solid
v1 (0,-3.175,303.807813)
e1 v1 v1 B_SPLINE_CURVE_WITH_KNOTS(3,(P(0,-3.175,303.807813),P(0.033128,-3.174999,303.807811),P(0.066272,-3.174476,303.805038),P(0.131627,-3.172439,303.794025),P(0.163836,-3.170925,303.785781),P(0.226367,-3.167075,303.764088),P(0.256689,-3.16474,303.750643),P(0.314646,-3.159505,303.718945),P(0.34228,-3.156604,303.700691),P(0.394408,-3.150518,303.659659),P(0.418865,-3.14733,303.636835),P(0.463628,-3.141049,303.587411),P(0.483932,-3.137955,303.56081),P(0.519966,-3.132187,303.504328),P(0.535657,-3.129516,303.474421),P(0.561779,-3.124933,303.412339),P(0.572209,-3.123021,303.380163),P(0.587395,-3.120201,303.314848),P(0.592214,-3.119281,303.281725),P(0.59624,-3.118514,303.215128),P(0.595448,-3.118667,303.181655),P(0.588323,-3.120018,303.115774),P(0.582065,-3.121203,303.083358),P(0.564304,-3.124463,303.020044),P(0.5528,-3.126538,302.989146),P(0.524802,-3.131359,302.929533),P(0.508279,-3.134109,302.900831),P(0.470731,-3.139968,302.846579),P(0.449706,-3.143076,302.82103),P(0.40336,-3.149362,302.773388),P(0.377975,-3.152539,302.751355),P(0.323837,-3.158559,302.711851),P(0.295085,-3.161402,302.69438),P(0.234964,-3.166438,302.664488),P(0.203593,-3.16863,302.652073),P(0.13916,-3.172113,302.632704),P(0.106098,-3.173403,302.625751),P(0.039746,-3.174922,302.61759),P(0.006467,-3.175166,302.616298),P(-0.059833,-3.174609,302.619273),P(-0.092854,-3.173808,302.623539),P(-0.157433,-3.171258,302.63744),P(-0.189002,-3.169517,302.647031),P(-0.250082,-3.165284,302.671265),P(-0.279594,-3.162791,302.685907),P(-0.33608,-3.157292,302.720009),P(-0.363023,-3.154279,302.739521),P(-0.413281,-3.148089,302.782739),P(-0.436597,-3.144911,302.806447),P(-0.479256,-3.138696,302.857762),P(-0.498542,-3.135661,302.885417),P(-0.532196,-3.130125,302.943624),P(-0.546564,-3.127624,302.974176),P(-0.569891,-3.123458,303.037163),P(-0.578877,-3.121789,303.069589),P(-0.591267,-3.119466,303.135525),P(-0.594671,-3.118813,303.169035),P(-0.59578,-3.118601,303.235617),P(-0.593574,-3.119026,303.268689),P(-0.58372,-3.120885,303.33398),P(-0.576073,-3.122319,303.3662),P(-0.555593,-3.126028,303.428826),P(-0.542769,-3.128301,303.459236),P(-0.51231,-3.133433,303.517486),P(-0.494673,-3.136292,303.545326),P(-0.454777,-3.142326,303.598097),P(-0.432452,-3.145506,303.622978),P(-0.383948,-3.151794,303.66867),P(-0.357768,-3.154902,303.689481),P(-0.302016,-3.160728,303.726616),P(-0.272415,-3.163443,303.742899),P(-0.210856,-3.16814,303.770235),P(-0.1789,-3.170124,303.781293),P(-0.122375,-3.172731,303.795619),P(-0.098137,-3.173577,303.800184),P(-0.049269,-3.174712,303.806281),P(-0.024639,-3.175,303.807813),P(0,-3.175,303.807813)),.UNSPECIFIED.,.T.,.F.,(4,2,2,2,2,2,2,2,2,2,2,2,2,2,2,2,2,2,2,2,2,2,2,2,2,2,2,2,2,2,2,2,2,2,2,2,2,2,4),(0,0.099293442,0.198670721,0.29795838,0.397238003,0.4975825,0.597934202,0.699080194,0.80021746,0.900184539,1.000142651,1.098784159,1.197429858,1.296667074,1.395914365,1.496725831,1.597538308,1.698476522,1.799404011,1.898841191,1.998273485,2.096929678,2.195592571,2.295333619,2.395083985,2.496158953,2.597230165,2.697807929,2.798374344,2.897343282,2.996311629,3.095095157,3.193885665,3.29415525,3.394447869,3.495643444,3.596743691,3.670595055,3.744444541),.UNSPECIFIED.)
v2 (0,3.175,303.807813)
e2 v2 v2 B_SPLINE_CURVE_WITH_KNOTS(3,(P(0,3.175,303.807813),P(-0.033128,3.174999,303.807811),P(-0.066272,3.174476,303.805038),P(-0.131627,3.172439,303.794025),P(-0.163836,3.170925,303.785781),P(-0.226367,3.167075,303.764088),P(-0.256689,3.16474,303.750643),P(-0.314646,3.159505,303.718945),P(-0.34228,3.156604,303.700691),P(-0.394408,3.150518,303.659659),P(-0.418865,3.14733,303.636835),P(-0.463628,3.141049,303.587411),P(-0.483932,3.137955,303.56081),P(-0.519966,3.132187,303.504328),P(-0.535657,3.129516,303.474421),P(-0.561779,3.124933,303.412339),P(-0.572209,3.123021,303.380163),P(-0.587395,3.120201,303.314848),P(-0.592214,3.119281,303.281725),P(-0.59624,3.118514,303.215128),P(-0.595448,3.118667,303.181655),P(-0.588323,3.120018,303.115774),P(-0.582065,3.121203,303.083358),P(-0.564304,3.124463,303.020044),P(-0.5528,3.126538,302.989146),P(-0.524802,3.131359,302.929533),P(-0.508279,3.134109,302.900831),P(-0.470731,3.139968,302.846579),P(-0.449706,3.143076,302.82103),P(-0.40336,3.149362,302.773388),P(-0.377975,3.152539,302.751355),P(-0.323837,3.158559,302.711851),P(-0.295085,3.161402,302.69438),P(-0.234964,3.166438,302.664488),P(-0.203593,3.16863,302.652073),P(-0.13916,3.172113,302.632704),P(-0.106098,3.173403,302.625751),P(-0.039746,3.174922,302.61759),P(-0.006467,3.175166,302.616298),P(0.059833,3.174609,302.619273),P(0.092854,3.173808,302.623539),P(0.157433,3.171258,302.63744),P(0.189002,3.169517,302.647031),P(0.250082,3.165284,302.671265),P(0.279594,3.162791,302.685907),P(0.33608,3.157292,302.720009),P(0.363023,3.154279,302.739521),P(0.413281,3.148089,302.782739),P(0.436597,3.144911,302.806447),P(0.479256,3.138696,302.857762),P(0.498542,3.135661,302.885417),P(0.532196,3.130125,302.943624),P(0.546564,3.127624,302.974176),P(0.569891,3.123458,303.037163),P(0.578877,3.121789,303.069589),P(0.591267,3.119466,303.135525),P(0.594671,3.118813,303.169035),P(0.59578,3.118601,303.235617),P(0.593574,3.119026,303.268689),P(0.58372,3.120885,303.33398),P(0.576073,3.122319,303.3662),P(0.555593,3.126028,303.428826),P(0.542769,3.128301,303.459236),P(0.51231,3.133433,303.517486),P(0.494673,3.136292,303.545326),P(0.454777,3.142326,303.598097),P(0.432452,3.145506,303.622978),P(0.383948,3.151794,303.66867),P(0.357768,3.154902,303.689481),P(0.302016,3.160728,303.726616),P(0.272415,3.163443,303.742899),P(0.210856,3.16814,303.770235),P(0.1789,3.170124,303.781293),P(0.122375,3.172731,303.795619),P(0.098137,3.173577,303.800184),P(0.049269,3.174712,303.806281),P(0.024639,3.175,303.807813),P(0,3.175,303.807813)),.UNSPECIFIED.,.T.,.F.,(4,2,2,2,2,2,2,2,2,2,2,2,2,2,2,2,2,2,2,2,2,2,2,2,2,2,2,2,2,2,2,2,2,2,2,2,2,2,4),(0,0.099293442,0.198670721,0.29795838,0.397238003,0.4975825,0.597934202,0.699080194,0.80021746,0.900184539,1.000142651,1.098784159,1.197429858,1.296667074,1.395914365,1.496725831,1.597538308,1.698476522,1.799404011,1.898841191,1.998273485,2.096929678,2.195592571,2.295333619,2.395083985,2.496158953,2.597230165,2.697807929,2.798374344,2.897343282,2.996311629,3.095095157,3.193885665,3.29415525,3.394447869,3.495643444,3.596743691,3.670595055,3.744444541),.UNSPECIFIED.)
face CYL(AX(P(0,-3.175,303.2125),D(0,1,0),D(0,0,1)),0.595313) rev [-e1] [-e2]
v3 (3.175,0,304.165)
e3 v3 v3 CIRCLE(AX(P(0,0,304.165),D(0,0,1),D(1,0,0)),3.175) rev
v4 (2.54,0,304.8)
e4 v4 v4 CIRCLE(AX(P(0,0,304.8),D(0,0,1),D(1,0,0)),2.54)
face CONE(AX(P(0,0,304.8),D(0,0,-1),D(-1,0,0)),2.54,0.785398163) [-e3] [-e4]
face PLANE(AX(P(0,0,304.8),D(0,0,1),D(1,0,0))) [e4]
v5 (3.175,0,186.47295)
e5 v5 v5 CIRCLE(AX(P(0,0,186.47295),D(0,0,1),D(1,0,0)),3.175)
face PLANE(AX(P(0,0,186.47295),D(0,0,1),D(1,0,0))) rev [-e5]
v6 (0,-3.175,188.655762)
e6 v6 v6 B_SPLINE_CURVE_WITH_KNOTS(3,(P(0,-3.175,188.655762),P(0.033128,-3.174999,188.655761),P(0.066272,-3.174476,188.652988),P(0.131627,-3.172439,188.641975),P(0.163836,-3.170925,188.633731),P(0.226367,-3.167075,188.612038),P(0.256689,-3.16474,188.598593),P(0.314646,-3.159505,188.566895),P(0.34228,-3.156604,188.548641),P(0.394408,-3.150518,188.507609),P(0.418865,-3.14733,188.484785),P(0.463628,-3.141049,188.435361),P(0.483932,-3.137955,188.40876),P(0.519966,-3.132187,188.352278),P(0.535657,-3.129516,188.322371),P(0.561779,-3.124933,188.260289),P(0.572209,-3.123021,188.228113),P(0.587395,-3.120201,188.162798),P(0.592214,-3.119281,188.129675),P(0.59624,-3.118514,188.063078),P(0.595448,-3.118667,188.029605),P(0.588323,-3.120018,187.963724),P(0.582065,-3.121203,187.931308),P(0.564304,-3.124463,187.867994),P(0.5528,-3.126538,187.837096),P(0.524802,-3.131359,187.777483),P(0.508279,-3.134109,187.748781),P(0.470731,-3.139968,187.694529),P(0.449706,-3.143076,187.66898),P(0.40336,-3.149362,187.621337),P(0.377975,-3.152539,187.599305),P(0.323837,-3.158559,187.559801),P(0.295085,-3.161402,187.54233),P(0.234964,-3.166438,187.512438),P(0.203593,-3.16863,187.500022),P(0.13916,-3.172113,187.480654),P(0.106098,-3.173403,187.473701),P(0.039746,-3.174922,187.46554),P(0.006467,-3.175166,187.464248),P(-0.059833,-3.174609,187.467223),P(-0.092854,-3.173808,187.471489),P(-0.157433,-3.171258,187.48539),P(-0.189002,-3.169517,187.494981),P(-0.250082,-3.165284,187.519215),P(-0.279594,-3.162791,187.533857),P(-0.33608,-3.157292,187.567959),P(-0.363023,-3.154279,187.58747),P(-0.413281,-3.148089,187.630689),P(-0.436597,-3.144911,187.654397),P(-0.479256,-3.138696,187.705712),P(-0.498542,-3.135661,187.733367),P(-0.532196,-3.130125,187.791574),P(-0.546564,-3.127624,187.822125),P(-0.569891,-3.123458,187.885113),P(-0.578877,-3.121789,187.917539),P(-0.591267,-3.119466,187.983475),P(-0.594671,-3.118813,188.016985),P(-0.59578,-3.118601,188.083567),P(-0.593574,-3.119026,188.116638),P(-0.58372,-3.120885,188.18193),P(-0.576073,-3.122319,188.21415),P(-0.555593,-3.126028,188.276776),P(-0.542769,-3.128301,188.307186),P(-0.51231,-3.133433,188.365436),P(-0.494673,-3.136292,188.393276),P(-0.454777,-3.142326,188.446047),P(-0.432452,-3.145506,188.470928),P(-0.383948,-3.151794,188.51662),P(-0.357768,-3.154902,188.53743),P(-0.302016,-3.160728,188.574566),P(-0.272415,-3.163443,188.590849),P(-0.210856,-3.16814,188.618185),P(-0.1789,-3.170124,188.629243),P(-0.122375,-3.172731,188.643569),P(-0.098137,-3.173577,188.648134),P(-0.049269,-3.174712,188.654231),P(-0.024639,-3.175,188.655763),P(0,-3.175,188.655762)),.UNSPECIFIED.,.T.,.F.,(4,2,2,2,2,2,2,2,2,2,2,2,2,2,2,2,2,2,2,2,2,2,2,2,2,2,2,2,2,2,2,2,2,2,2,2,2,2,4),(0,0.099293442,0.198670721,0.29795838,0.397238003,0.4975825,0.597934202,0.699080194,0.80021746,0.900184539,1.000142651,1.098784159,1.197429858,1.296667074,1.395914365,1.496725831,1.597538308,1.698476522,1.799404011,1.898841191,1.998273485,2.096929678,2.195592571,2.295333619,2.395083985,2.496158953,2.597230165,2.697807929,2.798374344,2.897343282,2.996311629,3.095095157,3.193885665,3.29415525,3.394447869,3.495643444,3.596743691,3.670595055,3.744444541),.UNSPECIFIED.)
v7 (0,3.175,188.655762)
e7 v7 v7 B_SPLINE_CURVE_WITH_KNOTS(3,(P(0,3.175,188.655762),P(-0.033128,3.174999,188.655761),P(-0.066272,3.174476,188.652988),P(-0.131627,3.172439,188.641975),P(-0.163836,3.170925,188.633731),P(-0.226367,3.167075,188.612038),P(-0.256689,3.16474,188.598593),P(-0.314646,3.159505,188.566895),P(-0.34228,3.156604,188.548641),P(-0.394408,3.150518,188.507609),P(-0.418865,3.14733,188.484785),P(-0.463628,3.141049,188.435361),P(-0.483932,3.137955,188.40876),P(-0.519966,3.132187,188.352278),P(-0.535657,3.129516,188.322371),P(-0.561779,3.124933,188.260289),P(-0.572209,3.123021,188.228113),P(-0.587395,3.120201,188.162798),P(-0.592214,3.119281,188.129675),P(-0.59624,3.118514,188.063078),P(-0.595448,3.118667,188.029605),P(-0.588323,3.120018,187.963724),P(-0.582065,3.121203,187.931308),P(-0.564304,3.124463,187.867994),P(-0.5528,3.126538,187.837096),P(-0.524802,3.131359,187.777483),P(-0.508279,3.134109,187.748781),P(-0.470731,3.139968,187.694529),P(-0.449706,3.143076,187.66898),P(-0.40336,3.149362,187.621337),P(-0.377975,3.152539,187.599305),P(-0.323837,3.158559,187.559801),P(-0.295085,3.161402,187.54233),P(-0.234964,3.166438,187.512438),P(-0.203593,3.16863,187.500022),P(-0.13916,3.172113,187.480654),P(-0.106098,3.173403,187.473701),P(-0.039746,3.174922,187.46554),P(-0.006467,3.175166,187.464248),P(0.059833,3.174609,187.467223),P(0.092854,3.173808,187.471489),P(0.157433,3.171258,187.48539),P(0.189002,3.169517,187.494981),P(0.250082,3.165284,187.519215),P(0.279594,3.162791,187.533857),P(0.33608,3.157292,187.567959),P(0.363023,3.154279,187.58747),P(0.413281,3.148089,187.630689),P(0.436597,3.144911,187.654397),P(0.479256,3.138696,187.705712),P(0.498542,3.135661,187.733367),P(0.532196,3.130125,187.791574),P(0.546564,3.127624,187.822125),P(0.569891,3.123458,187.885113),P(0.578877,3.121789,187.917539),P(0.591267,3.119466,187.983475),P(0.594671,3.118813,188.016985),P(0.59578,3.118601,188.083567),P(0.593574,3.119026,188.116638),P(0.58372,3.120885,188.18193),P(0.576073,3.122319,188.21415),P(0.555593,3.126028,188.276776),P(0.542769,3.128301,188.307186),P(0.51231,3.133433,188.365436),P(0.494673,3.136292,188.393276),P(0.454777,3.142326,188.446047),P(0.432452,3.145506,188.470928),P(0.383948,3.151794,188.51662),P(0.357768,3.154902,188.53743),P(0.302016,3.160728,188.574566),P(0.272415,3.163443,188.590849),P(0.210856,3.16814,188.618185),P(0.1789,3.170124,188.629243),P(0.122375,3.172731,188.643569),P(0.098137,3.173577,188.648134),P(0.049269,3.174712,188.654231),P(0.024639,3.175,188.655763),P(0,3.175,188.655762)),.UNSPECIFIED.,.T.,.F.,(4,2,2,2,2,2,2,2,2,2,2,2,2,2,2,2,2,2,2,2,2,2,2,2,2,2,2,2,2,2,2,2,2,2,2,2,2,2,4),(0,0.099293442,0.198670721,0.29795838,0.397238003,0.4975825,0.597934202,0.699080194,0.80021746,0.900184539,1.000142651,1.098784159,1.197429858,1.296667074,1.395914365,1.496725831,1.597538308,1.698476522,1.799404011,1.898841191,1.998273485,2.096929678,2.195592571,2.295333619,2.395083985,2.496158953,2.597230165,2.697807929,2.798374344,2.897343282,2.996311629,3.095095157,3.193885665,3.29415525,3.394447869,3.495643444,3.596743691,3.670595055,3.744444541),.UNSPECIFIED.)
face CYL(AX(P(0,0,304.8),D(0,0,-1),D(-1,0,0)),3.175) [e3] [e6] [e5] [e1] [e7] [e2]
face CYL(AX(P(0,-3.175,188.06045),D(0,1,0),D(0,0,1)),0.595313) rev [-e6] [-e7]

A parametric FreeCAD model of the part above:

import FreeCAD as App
import Part
import Sketcher
Q = App.Units.Quantity


def edges_at(feature, points):
    """Names of the edges that pass closest to the given points."""
    edges = feature.Shape.Edges
    near = lambda p: min(range(len(edges)), key=lambda i: edges[i].distToShape(Part.Vertex(*p))[0])
    return sorted({f"Edge{near(p) + 1}" for p in points})

doc = App.newDocument("Part")
params = doc.addObject("Spreadsheet::Sheet", "Params")
for row, (alias, value) in enumerate([
    ("sketch1_diameter", "0.25 in"),
    ("pad1_length", "24 in"),
    ("chamfer_size", "0.025 in"),
    ("sketch2_diameter", "0.25 in"),
    ("sketch3_diameter", "0.046875 in"),
], start=1):
    params.set(f"A{row}", alias)
    params.set(f"B{row}", "=" + value)
    params.setAlias(f"B{row}", alias)

body = doc.addObject("PartDesign::Body", "Body")

sketch1 = body.newObject("Sketcher::SketchObject", "Sketch")
sketch1.AttachmentSupport = (doc.getObject("XY_Plane"), [""])
sketch1.MapMode = "FlatFace"
sketch1.addGeometry(Part.Circle(App.Vector(0, 0, 0), App.Vector(0, 0, 1), 3.2), False)
sketch1.addConstraint(Sketcher.Constraint("Coincident", 0, 3, -1, 1))
sketch1.addConstraint(Sketcher.Constraint("Diameter", 0, Q("0.25 in")))
sketch1.setExpression("Constraints[1]", "Params.sketch1_diameter")
pad1 = body.newObject("PartDesign::Pad", "Pad")
pad1.Profile = sketch1
pad1.setExpression("Length", "Params.pad1_length")
pad1.Midplane = True
doc.recompute()

chamfer = body.newObject("PartDesign::Chamfer", "Chamfer")
chamfer.Base = (pad1, edges_at(pad1, [(-3.175, 0, -304.8), (-3.175, 0, 304.8)]))
chamfer.setExpression("Size", "Params.chamfer_size")

sketch2 = body.newObject("Sketcher::SketchObject", "Sketch001")
sketch2.AttachmentSupport = (doc.getObject("XY_Plane"), [""])
sketch2.MapMode = "FlatFace"
sketch2.AttachmentOffset = App.Placement(App.Vector(0, 0, 186.47295), App.Rotation())
sketch2.addGeometry(Part.Circle(App.Vector(0, 0, 0), App.Vector(0, 0, 1), 3.2), False)
sketch2.addConstraint(Sketcher.Constraint("Coincident", 0, 3, -1, 1))
sketch2.addConstraint(Sketcher.Constraint("Diameter", 0, Q("0.25 in")))
sketch2.setExpression("Constraints[1]", "Params.sketch2_diameter")
pocket1 = body.newObject("PartDesign::Pocket", "Pocket")
pocket1.Profile = sketch2
pocket1.Type = "ThroughAll"

sketch3 = body.newObject("Sketcher::SketchObject", "Sketch002")
sketch3.AttachmentSupport = (doc.getObject("XZ_Plane"), [""])
sketch3.MapMode = "FlatFace"
sketch3.addGeometry(Part.Circle(App.Vector(0, 188.1, 0), App.Vector(0, 0, 1), 0.6), False)
sketch3.addGeometry(Part.Circle(App.Vector(0, 303.2, 0), App.Vector(0, 0, 1), 0.6), False)
sketch3.addConstraint(Sketcher.Constraint("Equal", 0, 1))
sketch3.addConstraint(Sketcher.Constraint("PointOnObject", 0, 3, -2))
sketch3.addConstraint(Sketcher.Constraint("PointOnObject", 1, 3, -2))
sketch3.addConstraint(Sketcher.Constraint("Diameter", 0, Q("0.046875 in")))
sketch3.addConstraint(Sketcher.Constraint("DistanceY", -1, 1, 1, 3, Q("11.9375 in")))
sketch3.addConstraint(Sketcher.Constraint("DistanceY", -1, 1, 0, 3, 188.06045))
sketch3.setExpression("Constraints[3]", "Params.sketch3_diameter")
pocket2 = body.newObject("PartDesign::Pocket", "Pocket001")
pocket2.Profile = sketch3
pocket2.Type = "ThroughAll"
pocket2.Midplane = True

doc.recompute()
